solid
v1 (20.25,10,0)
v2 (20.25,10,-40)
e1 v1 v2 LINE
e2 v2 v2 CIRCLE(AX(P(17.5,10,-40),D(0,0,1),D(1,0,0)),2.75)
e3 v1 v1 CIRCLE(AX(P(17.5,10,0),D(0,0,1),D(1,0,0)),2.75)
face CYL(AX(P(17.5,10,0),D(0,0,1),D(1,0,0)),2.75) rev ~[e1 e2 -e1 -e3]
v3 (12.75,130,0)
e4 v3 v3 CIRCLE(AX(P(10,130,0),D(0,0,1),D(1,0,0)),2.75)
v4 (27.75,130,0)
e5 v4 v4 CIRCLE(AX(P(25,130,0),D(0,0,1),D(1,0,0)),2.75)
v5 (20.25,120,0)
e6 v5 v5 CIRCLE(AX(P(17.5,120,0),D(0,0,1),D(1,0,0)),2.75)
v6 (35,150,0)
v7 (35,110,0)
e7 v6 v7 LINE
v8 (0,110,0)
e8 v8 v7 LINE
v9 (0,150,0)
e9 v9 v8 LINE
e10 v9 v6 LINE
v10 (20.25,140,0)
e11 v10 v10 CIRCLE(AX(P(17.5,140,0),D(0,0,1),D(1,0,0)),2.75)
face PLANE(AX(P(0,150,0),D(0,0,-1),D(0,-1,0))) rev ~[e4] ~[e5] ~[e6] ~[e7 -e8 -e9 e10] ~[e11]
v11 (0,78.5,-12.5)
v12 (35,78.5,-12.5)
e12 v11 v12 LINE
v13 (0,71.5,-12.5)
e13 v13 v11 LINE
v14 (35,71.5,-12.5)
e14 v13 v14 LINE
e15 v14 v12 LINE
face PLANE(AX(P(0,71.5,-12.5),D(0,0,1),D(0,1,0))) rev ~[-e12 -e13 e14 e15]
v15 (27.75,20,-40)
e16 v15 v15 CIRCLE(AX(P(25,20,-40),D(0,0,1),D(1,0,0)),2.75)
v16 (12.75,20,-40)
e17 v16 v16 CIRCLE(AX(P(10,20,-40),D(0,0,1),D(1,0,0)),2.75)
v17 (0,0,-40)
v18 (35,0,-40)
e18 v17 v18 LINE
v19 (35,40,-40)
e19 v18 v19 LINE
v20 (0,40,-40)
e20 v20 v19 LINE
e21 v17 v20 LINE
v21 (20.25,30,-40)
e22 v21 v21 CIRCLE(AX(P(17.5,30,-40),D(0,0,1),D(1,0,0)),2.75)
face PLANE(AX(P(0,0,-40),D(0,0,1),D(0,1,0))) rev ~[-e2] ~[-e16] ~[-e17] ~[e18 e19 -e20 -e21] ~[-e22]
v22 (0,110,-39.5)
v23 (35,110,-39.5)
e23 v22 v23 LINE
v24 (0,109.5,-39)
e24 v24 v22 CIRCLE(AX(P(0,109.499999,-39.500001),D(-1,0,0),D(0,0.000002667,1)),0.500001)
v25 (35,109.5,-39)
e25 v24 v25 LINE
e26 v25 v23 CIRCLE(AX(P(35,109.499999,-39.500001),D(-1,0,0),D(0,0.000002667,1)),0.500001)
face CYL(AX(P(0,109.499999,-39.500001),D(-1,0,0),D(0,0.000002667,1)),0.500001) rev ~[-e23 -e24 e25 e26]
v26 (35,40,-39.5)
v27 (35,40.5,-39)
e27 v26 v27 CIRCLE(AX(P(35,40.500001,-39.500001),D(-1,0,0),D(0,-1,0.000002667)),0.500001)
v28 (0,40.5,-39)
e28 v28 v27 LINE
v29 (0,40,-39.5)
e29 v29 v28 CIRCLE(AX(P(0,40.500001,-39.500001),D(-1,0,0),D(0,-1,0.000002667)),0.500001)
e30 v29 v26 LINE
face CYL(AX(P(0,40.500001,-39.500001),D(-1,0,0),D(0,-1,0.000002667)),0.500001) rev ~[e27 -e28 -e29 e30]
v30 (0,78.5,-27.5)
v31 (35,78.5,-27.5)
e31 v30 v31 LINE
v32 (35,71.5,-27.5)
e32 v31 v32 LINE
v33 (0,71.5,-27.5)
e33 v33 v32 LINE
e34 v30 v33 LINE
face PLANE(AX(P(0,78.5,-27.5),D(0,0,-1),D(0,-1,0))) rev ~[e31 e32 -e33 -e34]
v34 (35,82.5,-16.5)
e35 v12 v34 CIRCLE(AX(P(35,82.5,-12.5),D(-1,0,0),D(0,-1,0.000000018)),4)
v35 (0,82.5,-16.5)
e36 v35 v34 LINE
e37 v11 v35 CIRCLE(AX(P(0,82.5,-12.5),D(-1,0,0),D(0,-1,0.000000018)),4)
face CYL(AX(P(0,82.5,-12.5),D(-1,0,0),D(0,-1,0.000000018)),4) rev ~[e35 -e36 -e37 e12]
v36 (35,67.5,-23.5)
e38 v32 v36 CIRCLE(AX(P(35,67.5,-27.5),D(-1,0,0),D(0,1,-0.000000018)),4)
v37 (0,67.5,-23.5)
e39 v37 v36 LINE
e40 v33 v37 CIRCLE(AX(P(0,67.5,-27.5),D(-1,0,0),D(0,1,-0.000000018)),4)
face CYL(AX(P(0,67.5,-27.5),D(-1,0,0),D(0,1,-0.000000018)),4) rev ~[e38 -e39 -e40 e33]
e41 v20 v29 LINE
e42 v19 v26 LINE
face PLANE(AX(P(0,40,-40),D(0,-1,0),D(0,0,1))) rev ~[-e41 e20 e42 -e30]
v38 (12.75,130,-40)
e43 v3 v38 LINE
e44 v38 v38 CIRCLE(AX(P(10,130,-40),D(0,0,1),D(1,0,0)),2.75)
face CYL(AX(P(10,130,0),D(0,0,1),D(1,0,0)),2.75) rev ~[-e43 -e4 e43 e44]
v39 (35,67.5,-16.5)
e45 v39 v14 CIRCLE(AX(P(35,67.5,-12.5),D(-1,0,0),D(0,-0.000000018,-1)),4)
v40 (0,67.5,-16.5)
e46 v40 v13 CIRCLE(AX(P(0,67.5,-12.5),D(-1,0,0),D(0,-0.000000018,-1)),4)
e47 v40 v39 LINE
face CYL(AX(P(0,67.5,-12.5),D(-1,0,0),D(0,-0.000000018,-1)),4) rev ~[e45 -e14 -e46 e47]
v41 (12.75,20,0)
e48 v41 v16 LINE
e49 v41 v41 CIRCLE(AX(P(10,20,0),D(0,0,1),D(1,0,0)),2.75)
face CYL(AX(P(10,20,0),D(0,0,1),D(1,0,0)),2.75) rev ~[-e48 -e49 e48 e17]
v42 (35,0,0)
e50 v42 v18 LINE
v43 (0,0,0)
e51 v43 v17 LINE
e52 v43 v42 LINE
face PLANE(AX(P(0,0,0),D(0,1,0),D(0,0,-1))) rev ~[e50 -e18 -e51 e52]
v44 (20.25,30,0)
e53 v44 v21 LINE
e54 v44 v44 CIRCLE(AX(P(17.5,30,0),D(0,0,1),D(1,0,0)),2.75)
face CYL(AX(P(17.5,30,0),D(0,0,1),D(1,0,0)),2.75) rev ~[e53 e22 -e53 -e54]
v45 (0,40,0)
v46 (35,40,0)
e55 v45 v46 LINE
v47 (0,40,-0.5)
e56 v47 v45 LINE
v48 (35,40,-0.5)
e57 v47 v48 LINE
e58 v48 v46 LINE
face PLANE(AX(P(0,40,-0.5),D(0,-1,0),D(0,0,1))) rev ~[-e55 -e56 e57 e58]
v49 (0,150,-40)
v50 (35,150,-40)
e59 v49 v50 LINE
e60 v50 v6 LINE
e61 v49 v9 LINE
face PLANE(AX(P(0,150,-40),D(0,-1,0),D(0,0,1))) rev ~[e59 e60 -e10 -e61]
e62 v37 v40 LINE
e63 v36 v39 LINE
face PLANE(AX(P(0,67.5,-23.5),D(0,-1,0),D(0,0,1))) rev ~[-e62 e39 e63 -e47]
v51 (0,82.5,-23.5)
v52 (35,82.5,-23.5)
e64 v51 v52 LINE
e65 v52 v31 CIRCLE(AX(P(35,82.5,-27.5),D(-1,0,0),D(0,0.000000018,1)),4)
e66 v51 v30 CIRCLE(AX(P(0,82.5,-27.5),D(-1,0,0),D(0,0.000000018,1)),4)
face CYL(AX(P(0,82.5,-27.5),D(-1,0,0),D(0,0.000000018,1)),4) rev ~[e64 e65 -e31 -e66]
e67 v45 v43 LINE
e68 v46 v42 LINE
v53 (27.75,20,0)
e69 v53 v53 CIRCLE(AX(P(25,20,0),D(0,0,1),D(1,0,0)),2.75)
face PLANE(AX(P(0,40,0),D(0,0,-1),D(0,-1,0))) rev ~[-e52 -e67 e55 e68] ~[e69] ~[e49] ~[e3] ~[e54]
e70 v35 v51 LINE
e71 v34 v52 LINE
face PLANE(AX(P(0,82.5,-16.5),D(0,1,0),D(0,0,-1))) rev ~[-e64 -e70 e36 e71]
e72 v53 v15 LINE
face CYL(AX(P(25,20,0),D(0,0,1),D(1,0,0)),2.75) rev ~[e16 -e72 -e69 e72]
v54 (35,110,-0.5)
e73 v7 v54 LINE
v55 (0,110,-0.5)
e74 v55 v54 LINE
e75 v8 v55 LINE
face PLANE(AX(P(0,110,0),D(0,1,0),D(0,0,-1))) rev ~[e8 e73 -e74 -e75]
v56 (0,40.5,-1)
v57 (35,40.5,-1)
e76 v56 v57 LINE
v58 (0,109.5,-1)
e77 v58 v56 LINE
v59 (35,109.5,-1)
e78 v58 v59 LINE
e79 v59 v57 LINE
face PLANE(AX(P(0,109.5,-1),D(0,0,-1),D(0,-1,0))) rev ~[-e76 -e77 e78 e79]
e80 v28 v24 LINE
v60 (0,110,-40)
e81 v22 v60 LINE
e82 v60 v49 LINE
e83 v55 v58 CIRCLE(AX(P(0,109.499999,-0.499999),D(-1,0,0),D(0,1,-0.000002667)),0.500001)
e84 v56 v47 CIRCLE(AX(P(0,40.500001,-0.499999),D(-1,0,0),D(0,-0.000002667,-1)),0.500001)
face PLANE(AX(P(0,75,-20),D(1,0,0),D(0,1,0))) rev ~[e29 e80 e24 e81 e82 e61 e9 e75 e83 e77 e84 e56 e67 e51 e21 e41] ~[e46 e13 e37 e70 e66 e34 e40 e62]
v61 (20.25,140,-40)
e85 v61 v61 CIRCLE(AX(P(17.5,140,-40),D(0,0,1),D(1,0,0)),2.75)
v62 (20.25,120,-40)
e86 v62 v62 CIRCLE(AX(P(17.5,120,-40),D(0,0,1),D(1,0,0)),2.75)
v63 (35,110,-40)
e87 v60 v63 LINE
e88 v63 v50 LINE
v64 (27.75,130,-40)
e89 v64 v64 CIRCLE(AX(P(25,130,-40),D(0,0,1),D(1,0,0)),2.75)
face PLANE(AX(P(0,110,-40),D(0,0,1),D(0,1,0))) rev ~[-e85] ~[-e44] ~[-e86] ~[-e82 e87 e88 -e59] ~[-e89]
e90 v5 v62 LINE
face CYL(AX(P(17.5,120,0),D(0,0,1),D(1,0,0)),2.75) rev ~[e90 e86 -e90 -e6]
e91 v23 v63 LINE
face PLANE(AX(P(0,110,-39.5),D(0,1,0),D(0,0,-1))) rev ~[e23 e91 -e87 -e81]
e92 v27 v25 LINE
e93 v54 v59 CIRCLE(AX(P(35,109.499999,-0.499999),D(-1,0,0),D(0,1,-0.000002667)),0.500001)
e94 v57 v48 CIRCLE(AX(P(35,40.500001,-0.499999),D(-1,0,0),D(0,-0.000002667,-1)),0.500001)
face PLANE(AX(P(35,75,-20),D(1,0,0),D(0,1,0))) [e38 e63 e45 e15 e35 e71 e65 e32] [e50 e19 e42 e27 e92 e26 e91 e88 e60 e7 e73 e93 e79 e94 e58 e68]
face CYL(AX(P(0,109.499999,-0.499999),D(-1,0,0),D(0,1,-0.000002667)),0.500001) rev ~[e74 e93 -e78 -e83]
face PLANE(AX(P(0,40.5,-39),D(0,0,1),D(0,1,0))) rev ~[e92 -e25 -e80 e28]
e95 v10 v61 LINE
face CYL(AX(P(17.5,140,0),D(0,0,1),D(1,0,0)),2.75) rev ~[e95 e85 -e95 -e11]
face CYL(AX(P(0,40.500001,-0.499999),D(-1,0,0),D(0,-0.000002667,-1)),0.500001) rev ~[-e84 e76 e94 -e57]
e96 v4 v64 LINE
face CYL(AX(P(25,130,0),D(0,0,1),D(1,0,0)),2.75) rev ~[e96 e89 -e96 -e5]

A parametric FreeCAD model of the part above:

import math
import FreeCAD as App
import Part
import Sketcher

V = App.Vector
Q = App.Units.Quantity

doc = App.newDocument("Part")
body = doc.addObject("PartDesign::Body", "Body")

sketch1 = body.newObject("Sketcher::SketchObject", "Sketch")
sketch1.AttachmentSupport = (doc.getObject("YZ_Plane"), [""])
sketch1.MapMode = "FlatFace"
sketch1.addGeometry(Part.LineSegment(V(40, 0, 0), V(0, 0, 0)), False)
sketch1.addGeometry(Part.LineSegment(V(0, 0, 0), V(0, -40, 0)), False)
sketch1.addGeometry(Part.LineSegment(V(0, -40, 0), V(40, -40, 0)), False)
sketch1.addGeometry(Part.LineSegment(V(40, -40, 0), V(40, -39.5, 0)), False)
sketch1.addGeometry(Part.ArcOfCircle(Part.Circle(V(40.5, -39.5, 0), V(0, 0, 1), 0.5), math.radians(90), math.radians(180)), False)
sketch1.addGeometry(Part.LineSegment(V(40.5, -39, 0), V(109.5, -39, 0)), False)
sketch1.addGeometry(Part.ArcOfCircle(Part.Circle(V(109.5, -39.5, 0), V(0, 0, 1), 0.5), math.radians(0), math.radians(90)), False)
sketch1.addGeometry(Part.LineSegment(V(110, -39.5, 0), V(110, -40, 0)), False)
sketch1.addGeometry(Part.LineSegment(V(110, -40, 0), V(150, -40, 0)), False)
sketch1.addGeometry(Part.LineSegment(V(150, -40, 0), V(150, 0, 0)), False)
sketch1.addGeometry(Part.LineSegment(V(150, 0, 0), V(110, 0, 0)), False)
sketch1.addGeometry(Part.LineSegment(V(110, 0, 0), V(110, -0.5, 0)), False)
sketch1.addGeometry(Part.ArcOfCircle(Part.Circle(V(109.5, -0.5, 0), V(0, 0, 1), 0.5), math.radians(-90), math.radians(0)), False)
sketch1.addGeometry(Part.LineSegment(V(109.5, -1, 0), V(40.5, -1, 0)), False)
sketch1.addGeometry(Part.ArcOfCircle(Part.Circle(V(40.5, -0.5, 0), V(0, 0, 1), 0.5), math.radians(-180), math.radians(-90)), False)
sketch1.addGeometry(Part.LineSegment(V(40, -0.5, 0), V(40, 0, 0)), False)
sketch1.addGeometry(Part.LineSegment(V(67.5, -23.5, 0), V(67.5, -16.5, 0)), False)
sketch1.addGeometry(Part.ArcOfCircle(Part.Circle(V(67.5, -12.5, 0), V(0, 0, 1), 4), math.radians(0), math.radians(270)), False)
sketch1.addGeometry(Part.LineSegment(V(71.5, -12.5, 0), V(78.5, -12.5, 0)), False)
sketch1.addGeometry(Part.ArcOfCircle(Part.Circle(V(82.5, -12.5, 0), V(0, 0, 1), 4), math.radians(-90), math.radians(180)), False)
sketch1.addGeometry(Part.LineSegment(V(82.5, -16.5, 0), V(82.5, -23.5, 0)), False)
sketch1.addGeometry(Part.ArcOfCircle(Part.Circle(V(82.5, -27.5, 0), V(0, 0, 1), 4), math.radians(-180), math.radians(90)), False)
sketch1.addGeometry(Part.LineSegment(V(78.5, -27.5, 0), V(71.5, -27.5, 0)), False)
sketch1.addGeometry(Part.ArcOfCircle(Part.Circle(V(67.5, -27.5, 0), V(0, 0, 1), 4), math.radians(90), math.radians(360)), False)
sketch1.addConstraint(Sketcher.Constraint("Coincident", 0, 2, 1, 1))
sketch1.addConstraint(Sketcher.Constraint("Coincident", 1, 2, 2, 1))
sketch1.addConstraint(Sketcher.Constraint("Coincident", 2, 2, 3, 1))
sketch1.addConstraint(Sketcher.Constraint("Coincident", 3, 2, 4, 2))
sketch1.addConstraint(Sketcher.Constraint("Coincident", 4, 1, 5, 1))
sketch1.addConstraint(Sketcher.Constraint("Coincident", 5, 2, 6, 2))
sketch1.addConstraint(Sketcher.Constraint("Coincident", 6, 1, 7, 1))
sketch1.addConstraint(Sketcher.Constraint("Coincident", 7, 2, 8, 1))
sketch1.addConstraint(Sketcher.Constraint("Coincident", 8, 2, 9, 1))
sketch1.addConstraint(Sketcher.Constraint("Coincident", 9, 2, 10, 1))
sketch1.addConstraint(Sketcher.Constraint("Coincident", 10, 2, 11, 1))
sketch1.addConstraint(Sketcher.Constraint("Coincident", 11, 2, 12, 2))
sketch1.addConstraint(Sketcher.Constraint("Coincident", 12, 1, 13, 1))
sketch1.addConstraint(Sketcher.Constraint("Coincident", 13, 2, 14, 2))
sketch1.addConstraint(Sketcher.Constraint("Coincident", 14, 1, 15, 1))
sketch1.addConstraint(Sketcher.Constraint("Coincident", 15, 2, 0, 1))
sketch1.addConstraint(Sketcher.Constraint("Coincident", 16, 2, 17, 2))
sketch1.addConstraint(Sketcher.Constraint("Coincident", 17, 1, 18, 1))
sketch1.addConstraint(Sketcher.Constraint("Coincident", 18, 2, 19, 2))
sketch1.addConstraint(Sketcher.Constraint("Coincident", 19, 1, 20, 1))
sketch1.addConstraint(Sketcher.Constraint("Coincident", 20, 2, 21, 2))
sketch1.addConstraint(Sketcher.Constraint("Coincident", 21, 1, 22, 1))
sketch1.addConstraint(Sketcher.Constraint("Coincident", 22, 2, 23, 2))
sketch1.addConstraint(Sketcher.Constraint("Coincident", 23, 1, 16, 1))
sketch1.addConstraint(Sketcher.Constraint("Horizontal", 0))
sketch1.addConstraint(Sketcher.Constraint("Vertical", 1))
sketch1.addConstraint(Sketcher.Constraint("Horizontal", 2))
sketch1.addConstraint(Sketcher.Constraint("Vertical", 3))
sketch1.addConstraint(Sketcher.Constraint("Horizontal", 5))
sketch1.addConstraint(Sketcher.Constraint("Vertical", 7))
sketch1.addConstraint(Sketcher.Constraint("Horizontal", 8))
sketch1.addConstraint(Sketcher.Constraint("Vertical", 9))
sketch1.addConstraint(Sketcher.Constraint("Horizontal", 10))
sketch1.addConstraint(Sketcher.Constraint("Vertical", 11))
sketch1.addConstraint(Sketcher.Constraint("Horizontal", 13))
sketch1.addConstraint(Sketcher.Constraint("Vertical", 15))
sketch1.addConstraint(Sketcher.Constraint("Vertical", 16))
sketch1.addConstraint(Sketcher.Constraint("Horizontal", 18))
sketch1.addConstraint(Sketcher.Constraint("Vertical", 20))
sketch1.addConstraint(Sketcher.Constraint("Horizontal", 22))
sketch1.addConstraint(Sketcher.Constraint("Coincident", 0, 2, -1, 1))
sketch1.addConstraint(Sketcher.Constraint("Equal", 4, 6))
sketch1.addConstraint(Sketcher.Constraint("Equal", 6, 12))
sketch1.addConstraint(Sketcher.Constraint("Equal", 12, 14))
sketch1.addConstraint(Sketcher.Constraint("Equal", 17, 19))
sketch1.addConstraint(Sketcher.Constraint("Equal", 19, 21))
sketch1.addConstraint(Sketcher.Constraint("Equal", 21, 23))
sketch1.addConstraint(Sketcher.Constraint("PointOnObject", 9, 2, -1))
sketch1.addConstraint(Sketcher.Constraint("Horizontal", 17, 3, 19, 3))
sketch1.addConstraint(Sketcher.Constraint("Horizontal", 21, 3, 23, 3))
sketch1.addConstraint(Sketcher.Constraint("Horizontal", 6, 3, 3, 2))
sketch1.addConstraint(Sketcher.Constraint("Horizontal", 3, 2, 6, 1))
sketch1.addConstraint(Sketcher.Constraint("Horizontal", 2, 2, 7, 2))
sketch1.addConstraint(Sketcher.Constraint("Horizontal", 14, 3, 11, 2))
sketch1.addConstraint(Sketcher.Constraint("Horizontal", 11, 2, 14, 1))
sketch1.addConstraint(Sketcher.Constraint("Horizontal", 19, 3, 17, 1))
sketch1.addConstraint(Sketcher.Constraint("Horizontal", 23, 3, 21, 1))
sketch1.addConstraint(Sketcher.Constraint("Vertical", 6, 3, 12, 3))
sketch1.addConstraint(Sketcher.Constraint("Vertical", 4, 3, 14, 3))
sketch1.addConstraint(Sketcher.Constraint("Vertical", 19, 3, 21, 3))
sketch1.addConstraint(Sketcher.Constraint("Vertical", 17, 3, 23, 3))
sketch1.addConstraint(Sketcher.Constraint("Vertical", 14, 3, 4, 1))
sketch1.addConstraint(Sketcher.Constraint("Vertical", 12, 3, 5, 2))
sketch1.addConstraint(Sketcher.Constraint("Vertical", 5, 2, 12, 1))
sketch1.addConstraint(Sketcher.Constraint("Vertical", 4, 1, 13, 2))
sketch1.addConstraint(Sketcher.Constraint("Vertical", 23, 3, 16, 2))
sketch1.addConstraint(Sketcher.Constraint("Vertical", 21, 3, 19, 1))
sketch1.addConstraint(Sketcher.Constraint("Equal", 2, 8))
sketch1.addConstraint(Sketcher.Constraint("Equal", 10, 1))
sketch1.addConstraint(Sketcher.Constraint("Equal", 7, 11))
sketch1.addConstraint(Sketcher.Constraint("Equal", 22, 16))
sketch1.addConstraint(Sketcher.Constraint("Radius", 17, Q("4 mm")))
sketch1.addConstraint(Sketcher.Constraint("Radius", 4, Q("0.500001 mm")))
sketch1.addConstraint(Sketcher.Constraint("DistanceX", 0, 2, 0, 1, Q("40 mm")))
sketch1.addConstraint(Sketcher.Constraint("DistanceX", 5, 1, 5, 2, Q("69 mm")))
sketch1.addConstraint(Sketcher.Constraint("DistanceX", 18, 1, 18, 2, Q("7 mm")))
sketch1.addConstraint(Sketcher.Constraint("DistanceY", 3, 1, 3, 2, Q("0.5 mm")))
sketch1.addConstraint(Sketcher.Constraint("DistanceX", 14, 3, 17, 3, Q("26.999999 mm")))
sketch1.addConstraint(Sketcher.Constraint("DistanceY", 17, 3, 14, 3, Q("12.000001 mm")))
pad1 = body.newObject("PartDesign::Pad", "Pad")
pad1.Profile = sketch1
pad1.Length = 35

sketch2 = body.newObject("Sketcher::SketchObject", "Sketch001")
sketch2.AttachmentSupport = (doc.getObject("XY_Plane"), [""])
sketch2.MapMode = "FlatFace"
sketch2.addGeometry(Part.Circle(V(17.5, 10, 0), V(0, 0, 1), 2.8), False)
sketch2.addGeometry(Part.Circle(V(17.5, 30, 0), V(0, 0, 1), 2.8), False)
sketch2.addGeometry(Part.Circle(V(25, 20, 0), V(0, 0, 1), 2.8), False)
sketch2.addGeometry(Part.Circle(V(10, 20, 0), V(0, 0, 1), 2.8), False)
sketch2.addGeometry(Part.Circle(V(17.5, 120, 0), V(0, 0, 1), 2.8), False)
sketch2.addGeometry(Part.Circle(V(17.5, 140, 0), V(0, 0, 1), 2.8), False)
sketch2.addGeometry(Part.Circle(V(25, 130, 0), V(0, 0, 1), 2.8), False)
sketch2.addGeometry(Part.Circle(V(10, 130, 0), V(0, 0, 1), 2.8), False)
sketch2.addConstraint(Sketcher.Constraint("Equal", 0, 1))
sketch2.addConstraint(Sketcher.Constraint("Equal", 1, 2))
sketch2.addConstraint(Sketcher.Constraint("Equal", 2, 3))
sketch2.addConstraint(Sketcher.Constraint("Equal", 3, 4))
sketch2.addConstraint(Sketcher.Constraint("Equal", 4, 5))
sketch2.addConstraint(Sketcher.Constraint("Equal", 5, 6))
sketch2.addConstraint(Sketcher.Constraint("Equal", 6, 7))
sketch2.addConstraint(Sketcher.Constraint("Horizontal", 2, 3, 3, 3))
sketch2.addConstraint(Sketcher.Constraint("Horizontal", 6, 3, 7, 3))
sketch2.addConstraint(Sketcher.Constraint("Vertical", 0, 3, 1, 3))
sketch2.addConstraint(Sketcher.Constraint("Vertical", 1, 3, 4, 3))
sketch2.addConstraint(Sketcher.Constraint("Vertical", 4, 3, 5, 3))
sketch2.addConstraint(Sketcher.Constraint("Vertical", 2, 3, 6, 3))
sketch2.addConstraint(Sketcher.Constraint("Vertical", 3, 3, 7, 3))
sketch2.addConstraint(Sketcher.Constraint("Diameter", 0, Q("5.5 mm")))
sketch2.addConstraint(Sketcher.Constraint("DistanceY", -1, 1, 0, 3, Q("10 mm")))
sketch2.addConstraint(Sketcher.Constraint("DistanceY", -1, 1, 1, 3, Q("30 mm")))
sketch2.addConstraint(Sketcher.Constraint("DistanceX", -1, 1, 2, 3, Q("25 mm")))
sketch2.addConstraint(Sketcher.Constraint("DistanceY", -1, 1, 2, 3, Q("20 mm")))
sketch2.addConstraint(Sketcher.Constraint("DistanceX", -1, 1, 3, 3, Q("10 mm")))
sketch2.addConstraint(Sketcher.Constraint("DistanceY", -1, 1, 4, 3, Q("120 mm")))
sketch2.addConstraint(Sketcher.Constraint("DistanceY", -1, 1, 5, 3, Q("140 mm")))
sketch2.addConstraint(Sketcher.Constraint("DistanceY", -1, 1, 6, 3, Q("130 mm")))
sketch2.addConstraint(Sketcher.Constraint("DistanceX", -1, 1, 0, 3, Q("17.5 mm")))
pocket1 = body.newObject("PartDesign::Pocket", "Pocket")
pocket1.Profile = sketch2
pocket1.Type = "ThroughAll"

doc.recompute()
